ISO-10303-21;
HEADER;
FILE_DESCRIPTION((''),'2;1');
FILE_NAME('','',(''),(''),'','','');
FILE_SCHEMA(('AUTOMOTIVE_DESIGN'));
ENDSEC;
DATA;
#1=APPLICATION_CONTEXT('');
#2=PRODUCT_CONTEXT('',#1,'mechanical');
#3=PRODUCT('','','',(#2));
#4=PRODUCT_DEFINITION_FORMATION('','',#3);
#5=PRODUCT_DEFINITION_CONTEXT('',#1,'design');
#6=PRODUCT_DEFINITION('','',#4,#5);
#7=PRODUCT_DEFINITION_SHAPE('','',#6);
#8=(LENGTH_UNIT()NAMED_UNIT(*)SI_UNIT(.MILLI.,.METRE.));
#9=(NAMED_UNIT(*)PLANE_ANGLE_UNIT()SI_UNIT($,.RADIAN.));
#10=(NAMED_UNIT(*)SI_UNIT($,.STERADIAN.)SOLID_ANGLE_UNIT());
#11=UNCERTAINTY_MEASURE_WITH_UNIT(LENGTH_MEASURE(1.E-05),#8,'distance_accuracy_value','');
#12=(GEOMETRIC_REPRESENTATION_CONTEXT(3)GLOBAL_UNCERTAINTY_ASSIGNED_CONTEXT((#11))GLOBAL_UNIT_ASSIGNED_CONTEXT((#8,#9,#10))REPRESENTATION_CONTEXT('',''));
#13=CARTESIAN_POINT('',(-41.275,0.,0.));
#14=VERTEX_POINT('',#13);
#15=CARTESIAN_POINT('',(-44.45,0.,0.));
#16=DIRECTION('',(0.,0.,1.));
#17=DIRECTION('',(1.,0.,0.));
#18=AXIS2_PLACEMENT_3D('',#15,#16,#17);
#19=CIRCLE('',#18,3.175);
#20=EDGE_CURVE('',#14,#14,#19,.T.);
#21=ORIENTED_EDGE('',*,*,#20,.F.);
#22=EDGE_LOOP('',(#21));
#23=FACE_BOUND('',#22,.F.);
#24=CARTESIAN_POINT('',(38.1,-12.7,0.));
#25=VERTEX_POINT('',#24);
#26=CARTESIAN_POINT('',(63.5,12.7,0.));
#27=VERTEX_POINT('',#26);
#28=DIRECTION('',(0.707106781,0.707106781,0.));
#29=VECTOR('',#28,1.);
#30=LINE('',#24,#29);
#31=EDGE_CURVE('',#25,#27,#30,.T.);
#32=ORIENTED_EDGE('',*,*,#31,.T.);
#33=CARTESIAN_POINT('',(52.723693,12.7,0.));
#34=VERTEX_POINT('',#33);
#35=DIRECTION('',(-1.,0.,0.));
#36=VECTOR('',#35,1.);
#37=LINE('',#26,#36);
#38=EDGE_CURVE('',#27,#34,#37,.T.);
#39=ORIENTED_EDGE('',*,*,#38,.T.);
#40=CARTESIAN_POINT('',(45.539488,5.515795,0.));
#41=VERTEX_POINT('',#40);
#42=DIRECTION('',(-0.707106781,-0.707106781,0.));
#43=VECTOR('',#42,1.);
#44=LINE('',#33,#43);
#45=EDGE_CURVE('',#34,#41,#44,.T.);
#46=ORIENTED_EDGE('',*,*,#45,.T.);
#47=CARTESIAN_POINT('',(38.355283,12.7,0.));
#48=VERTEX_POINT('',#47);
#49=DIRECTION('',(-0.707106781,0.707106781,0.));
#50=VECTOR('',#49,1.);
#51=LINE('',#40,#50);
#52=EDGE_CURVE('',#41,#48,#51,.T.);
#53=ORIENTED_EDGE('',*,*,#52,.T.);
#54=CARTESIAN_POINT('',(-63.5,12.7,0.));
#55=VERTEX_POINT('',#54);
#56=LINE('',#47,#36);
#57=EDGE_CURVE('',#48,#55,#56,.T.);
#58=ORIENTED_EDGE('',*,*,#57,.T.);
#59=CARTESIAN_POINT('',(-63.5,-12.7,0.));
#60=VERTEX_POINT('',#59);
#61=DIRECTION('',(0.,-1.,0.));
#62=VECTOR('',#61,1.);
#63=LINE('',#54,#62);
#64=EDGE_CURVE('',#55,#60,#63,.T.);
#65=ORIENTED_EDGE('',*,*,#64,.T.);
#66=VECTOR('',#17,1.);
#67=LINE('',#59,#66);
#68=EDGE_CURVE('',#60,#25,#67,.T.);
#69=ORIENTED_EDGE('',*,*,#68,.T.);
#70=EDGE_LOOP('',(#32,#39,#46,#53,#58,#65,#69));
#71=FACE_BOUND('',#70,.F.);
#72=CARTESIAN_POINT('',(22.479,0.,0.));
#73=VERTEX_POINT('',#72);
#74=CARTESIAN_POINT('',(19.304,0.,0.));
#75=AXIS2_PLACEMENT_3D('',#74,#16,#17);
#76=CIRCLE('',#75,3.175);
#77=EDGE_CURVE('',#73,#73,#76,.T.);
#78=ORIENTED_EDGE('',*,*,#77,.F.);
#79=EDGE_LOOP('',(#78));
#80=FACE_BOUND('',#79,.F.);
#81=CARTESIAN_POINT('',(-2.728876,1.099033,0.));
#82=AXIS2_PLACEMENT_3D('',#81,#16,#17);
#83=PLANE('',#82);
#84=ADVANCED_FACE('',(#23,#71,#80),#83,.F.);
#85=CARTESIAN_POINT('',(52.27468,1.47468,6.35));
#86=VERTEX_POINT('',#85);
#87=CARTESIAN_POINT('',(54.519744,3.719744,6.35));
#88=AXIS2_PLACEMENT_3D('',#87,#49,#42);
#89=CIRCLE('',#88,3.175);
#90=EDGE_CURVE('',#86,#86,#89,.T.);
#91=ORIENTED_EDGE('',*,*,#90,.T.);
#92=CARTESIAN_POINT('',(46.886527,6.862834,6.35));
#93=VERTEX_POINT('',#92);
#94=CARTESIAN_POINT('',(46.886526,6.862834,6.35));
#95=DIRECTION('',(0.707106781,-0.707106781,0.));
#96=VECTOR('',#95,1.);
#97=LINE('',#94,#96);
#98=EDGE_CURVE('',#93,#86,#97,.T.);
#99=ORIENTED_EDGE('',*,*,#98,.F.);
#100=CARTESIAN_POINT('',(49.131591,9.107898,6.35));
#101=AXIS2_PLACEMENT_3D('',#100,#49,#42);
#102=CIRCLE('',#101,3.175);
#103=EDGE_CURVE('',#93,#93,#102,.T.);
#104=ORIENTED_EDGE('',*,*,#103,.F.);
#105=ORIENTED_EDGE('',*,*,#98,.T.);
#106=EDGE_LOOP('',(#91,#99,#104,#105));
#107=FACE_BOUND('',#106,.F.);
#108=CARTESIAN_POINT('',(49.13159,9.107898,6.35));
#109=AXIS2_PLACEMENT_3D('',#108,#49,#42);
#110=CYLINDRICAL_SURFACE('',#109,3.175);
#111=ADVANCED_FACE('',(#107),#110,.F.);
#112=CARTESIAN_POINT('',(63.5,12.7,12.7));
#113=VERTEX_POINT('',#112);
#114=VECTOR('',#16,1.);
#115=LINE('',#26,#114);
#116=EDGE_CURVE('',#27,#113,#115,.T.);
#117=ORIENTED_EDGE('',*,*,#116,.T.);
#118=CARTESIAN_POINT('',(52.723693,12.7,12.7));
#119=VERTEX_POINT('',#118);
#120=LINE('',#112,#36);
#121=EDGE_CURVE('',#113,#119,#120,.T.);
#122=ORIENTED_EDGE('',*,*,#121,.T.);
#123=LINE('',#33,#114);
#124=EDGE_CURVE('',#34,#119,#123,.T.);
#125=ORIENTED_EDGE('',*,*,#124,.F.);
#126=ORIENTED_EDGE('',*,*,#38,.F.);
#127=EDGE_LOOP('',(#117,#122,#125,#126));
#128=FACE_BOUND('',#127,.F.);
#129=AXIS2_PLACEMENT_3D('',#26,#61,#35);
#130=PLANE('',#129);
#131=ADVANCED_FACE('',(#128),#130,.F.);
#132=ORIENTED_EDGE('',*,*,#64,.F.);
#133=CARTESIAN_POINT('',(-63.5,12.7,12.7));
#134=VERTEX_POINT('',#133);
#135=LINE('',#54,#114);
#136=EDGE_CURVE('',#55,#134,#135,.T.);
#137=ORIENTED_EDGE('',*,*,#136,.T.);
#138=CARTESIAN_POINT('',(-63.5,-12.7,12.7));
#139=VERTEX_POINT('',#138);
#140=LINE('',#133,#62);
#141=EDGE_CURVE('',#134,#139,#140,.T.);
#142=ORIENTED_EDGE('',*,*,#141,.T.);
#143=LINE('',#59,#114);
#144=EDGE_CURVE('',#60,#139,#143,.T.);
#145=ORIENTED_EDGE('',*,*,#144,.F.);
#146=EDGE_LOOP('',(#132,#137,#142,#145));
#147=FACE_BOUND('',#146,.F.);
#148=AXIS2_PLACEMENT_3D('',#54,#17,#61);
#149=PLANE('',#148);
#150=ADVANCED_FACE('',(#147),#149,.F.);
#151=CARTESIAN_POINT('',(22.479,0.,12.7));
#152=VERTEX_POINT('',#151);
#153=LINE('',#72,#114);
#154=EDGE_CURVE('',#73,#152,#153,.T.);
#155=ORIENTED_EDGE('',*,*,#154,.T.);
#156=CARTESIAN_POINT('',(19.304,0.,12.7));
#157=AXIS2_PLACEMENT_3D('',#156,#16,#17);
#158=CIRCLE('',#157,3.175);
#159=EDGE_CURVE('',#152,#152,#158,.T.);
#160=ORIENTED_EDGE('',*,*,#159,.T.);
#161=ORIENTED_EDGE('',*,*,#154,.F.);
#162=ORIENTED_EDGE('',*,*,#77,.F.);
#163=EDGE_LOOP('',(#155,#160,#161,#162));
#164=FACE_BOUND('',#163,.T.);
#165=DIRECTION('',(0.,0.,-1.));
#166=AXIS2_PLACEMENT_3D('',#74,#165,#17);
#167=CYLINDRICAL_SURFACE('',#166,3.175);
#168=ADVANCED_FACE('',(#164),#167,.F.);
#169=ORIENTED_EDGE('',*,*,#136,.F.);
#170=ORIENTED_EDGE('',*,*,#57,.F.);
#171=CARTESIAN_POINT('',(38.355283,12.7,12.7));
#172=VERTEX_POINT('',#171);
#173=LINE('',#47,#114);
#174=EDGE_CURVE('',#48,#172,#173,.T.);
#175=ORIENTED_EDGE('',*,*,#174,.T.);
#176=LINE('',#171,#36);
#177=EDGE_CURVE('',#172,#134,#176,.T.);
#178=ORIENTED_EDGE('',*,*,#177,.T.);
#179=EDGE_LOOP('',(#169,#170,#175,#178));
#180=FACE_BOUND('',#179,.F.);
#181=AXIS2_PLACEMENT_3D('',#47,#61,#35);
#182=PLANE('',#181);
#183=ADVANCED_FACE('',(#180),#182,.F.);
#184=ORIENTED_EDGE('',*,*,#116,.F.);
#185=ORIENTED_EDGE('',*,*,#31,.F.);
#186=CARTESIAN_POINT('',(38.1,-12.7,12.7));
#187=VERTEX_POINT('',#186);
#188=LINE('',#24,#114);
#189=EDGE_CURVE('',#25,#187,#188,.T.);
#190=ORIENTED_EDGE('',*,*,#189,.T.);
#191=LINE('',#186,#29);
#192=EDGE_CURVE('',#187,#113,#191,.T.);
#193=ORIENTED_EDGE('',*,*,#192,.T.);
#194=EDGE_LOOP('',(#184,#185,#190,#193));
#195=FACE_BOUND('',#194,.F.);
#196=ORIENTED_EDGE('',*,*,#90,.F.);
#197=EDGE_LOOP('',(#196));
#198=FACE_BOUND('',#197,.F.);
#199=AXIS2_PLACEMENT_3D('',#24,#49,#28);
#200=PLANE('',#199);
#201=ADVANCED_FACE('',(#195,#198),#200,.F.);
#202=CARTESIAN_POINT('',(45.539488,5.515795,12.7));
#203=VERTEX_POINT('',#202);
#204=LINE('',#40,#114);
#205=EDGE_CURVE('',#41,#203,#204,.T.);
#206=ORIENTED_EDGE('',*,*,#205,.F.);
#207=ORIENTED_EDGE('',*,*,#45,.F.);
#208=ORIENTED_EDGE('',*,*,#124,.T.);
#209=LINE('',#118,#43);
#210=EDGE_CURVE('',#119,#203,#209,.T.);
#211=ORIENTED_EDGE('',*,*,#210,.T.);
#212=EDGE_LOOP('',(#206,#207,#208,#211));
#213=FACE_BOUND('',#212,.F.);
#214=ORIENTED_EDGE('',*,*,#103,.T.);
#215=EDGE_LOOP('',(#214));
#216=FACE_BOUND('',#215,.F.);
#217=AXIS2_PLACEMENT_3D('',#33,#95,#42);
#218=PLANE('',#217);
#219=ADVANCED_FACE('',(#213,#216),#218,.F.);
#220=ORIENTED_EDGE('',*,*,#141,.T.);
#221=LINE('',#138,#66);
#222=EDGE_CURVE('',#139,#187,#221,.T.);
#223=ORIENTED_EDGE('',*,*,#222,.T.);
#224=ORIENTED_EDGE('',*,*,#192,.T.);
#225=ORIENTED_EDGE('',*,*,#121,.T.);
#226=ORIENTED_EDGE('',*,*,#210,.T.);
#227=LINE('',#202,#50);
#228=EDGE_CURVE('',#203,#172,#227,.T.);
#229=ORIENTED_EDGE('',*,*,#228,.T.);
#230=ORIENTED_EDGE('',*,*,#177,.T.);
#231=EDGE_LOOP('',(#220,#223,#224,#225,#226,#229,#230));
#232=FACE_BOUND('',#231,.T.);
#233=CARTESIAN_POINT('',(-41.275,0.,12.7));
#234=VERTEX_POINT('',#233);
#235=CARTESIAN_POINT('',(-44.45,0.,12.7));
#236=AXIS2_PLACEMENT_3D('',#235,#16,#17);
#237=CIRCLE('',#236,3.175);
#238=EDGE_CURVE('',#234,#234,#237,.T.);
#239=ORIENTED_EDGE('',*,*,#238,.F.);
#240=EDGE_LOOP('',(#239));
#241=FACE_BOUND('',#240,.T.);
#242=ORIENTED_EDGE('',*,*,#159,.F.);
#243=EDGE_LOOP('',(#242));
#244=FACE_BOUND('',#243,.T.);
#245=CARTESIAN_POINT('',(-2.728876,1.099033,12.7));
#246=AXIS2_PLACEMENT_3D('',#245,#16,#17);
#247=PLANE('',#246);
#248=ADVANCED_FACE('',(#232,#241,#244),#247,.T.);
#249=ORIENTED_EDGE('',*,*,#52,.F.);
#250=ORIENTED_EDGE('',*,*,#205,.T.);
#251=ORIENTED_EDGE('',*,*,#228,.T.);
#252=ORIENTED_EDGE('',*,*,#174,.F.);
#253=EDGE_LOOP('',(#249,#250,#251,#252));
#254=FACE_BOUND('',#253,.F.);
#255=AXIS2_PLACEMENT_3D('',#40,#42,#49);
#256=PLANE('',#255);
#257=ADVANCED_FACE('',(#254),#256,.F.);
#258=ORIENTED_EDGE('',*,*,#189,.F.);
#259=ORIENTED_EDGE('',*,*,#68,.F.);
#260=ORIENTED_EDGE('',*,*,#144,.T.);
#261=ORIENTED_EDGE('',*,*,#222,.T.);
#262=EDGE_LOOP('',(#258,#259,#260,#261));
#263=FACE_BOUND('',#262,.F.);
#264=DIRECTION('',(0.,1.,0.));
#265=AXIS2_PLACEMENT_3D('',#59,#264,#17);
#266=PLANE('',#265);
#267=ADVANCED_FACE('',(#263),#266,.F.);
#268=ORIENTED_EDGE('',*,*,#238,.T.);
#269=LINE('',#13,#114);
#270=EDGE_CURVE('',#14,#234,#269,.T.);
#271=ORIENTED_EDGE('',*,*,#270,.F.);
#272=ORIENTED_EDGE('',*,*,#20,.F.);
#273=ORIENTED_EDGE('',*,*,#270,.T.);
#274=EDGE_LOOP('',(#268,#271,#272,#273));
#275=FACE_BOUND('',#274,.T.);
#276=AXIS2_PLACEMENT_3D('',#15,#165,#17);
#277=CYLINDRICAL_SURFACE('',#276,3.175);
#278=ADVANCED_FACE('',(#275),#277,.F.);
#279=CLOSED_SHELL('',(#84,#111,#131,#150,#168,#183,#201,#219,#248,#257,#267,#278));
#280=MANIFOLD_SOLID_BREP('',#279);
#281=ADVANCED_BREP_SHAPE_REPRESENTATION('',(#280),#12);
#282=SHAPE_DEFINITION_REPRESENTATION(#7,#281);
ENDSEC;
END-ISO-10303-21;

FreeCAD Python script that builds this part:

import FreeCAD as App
import Part
import Sketcher

V = App.Vector
Q = App.Units.Quantity


def add_polygon(sketch, points):
    """Adds a closed chain of lines whose ends are joined by coincident constraints."""
    first, n = sketch.GeometryCount, len(points)
    for a, b in zip(points, points[1:] + points[:1]):
        sketch.addGeometry(Part.LineSegment(App.Vector(*a, 0), App.Vector(*b, 0)), False)
    for i in range(n):
        sketch.addConstraint(Sketcher.Constraint("Coincident", first + i, 2, first + (i + 1) % n, 1))

doc = App.newDocument("Part")
body = doc.addObject("PartDesign::Body", "Body")

# Sketch on XY plane
sketch1 = body.newObject("Sketcher::SketchObject", "Sketch")
sketch1.AttachmentSupport = (doc.getObject("XY_Plane"), [""])
sketch1.MapMode = "FlatFace"
add_polygon(sketch1, [(38.4, 12.7), (-63.5, 12.7), (-63.5, -12.7), (38.1, -12.7), (63.5, 12.7), (52.7, 12.7), (45.5, 5.5)])  # lines 0-6
sketch1.addGeometry(Part.Circle(V(-44.5, 0, 0), V(0, 0, 1), 3.2), False)  # 7
sketch1.addGeometry(Part.Circle(V(19.3, 0, 0), V(0, 0, 1), 3.2), False)  # 8
sketch1.addConstraint([
    Sketcher.Constraint("Horizontal", 0),
    Sketcher.Constraint("Vertical", 1),
    Sketcher.Constraint("Horizontal", 2),
    Sketcher.Constraint("Horizontal", 4),
    Sketcher.Constraint("Equal", 7, 8),
    Sketcher.Constraint("Symmetric", 1, 2, 3, 2, -1, 1),
    Sketcher.Constraint("PointOnObject", 7, 3, -1),
    Sketcher.Constraint("PointOnObject", 8, 3, -1),
    Sketcher.Constraint("Parallel", 3, 5),
    Sketcher.Constraint("Perpendicular", 5, 6),
    Sketcher.Constraint("Horizontal", 0, 2, 3, 2),
    Sketcher.Constraint("Equal", 5, 6),
    Sketcher.Constraint("Diameter", 7, Q("0.25 in")),
    Sketcher.Constraint("DistanceX", 2, 1, 2, 2, Q("4 in")),
    Sketcher.Constraint("DistanceY", 1, 2, 1, 1, Q("1 in")),
    Sketcher.Constraint("Distance", 5, Q("0.4 in")),
    Sketcher.Constraint("DistanceX", 7, 3, -1, 1, Q("1.75 in")),
    Sketcher.Constraint("DistanceX", -1, 1, 8, 3, Q("0.76 in")),
    Sketcher.Constraint("DistanceX", 0, 2, 0, 1, Q("101.855283 mm")),
])
pad1 = body.newObject("PartDesign::Pad", "Pad")
pad1.Profile = sketch1
pad1.Length = Q("0.5 in")

# Sketch on an angled plane
sketch2 = body.newObject("Sketcher::SketchObject", "Sketch001")
sketch2.Placement = App.Placement(V(20.011846, -20.011846, 0), App.Rotation(V(-0.707106781, -0.707106781, 0), V(0, 0, 0.999999999), V(-0.707106781, 0.707106781, 0), "ZXY"))
sketch2.addGeometry(Part.Circle(V(-41.2, 6.3, 0), V(0, 0, 1), 3.2), False)
sketch2.addConstraint([
    Sketcher.Constraint("Diameter", 0, Q("0.25 in")),
    Sketcher.Constraint("DistanceY", -1, 1, 0, 3, Q("0.25 in")),
    Sketcher.Constraint("DistanceX", 0, 3, -1, 1, Q("41.181537 mm")),
])
pocket1 = body.newObject("PartDesign::Pocket", "Pocket")
pocket1.Profile = sketch2
pocket1.Length = Q("0.661 in")

doc.recompute()
